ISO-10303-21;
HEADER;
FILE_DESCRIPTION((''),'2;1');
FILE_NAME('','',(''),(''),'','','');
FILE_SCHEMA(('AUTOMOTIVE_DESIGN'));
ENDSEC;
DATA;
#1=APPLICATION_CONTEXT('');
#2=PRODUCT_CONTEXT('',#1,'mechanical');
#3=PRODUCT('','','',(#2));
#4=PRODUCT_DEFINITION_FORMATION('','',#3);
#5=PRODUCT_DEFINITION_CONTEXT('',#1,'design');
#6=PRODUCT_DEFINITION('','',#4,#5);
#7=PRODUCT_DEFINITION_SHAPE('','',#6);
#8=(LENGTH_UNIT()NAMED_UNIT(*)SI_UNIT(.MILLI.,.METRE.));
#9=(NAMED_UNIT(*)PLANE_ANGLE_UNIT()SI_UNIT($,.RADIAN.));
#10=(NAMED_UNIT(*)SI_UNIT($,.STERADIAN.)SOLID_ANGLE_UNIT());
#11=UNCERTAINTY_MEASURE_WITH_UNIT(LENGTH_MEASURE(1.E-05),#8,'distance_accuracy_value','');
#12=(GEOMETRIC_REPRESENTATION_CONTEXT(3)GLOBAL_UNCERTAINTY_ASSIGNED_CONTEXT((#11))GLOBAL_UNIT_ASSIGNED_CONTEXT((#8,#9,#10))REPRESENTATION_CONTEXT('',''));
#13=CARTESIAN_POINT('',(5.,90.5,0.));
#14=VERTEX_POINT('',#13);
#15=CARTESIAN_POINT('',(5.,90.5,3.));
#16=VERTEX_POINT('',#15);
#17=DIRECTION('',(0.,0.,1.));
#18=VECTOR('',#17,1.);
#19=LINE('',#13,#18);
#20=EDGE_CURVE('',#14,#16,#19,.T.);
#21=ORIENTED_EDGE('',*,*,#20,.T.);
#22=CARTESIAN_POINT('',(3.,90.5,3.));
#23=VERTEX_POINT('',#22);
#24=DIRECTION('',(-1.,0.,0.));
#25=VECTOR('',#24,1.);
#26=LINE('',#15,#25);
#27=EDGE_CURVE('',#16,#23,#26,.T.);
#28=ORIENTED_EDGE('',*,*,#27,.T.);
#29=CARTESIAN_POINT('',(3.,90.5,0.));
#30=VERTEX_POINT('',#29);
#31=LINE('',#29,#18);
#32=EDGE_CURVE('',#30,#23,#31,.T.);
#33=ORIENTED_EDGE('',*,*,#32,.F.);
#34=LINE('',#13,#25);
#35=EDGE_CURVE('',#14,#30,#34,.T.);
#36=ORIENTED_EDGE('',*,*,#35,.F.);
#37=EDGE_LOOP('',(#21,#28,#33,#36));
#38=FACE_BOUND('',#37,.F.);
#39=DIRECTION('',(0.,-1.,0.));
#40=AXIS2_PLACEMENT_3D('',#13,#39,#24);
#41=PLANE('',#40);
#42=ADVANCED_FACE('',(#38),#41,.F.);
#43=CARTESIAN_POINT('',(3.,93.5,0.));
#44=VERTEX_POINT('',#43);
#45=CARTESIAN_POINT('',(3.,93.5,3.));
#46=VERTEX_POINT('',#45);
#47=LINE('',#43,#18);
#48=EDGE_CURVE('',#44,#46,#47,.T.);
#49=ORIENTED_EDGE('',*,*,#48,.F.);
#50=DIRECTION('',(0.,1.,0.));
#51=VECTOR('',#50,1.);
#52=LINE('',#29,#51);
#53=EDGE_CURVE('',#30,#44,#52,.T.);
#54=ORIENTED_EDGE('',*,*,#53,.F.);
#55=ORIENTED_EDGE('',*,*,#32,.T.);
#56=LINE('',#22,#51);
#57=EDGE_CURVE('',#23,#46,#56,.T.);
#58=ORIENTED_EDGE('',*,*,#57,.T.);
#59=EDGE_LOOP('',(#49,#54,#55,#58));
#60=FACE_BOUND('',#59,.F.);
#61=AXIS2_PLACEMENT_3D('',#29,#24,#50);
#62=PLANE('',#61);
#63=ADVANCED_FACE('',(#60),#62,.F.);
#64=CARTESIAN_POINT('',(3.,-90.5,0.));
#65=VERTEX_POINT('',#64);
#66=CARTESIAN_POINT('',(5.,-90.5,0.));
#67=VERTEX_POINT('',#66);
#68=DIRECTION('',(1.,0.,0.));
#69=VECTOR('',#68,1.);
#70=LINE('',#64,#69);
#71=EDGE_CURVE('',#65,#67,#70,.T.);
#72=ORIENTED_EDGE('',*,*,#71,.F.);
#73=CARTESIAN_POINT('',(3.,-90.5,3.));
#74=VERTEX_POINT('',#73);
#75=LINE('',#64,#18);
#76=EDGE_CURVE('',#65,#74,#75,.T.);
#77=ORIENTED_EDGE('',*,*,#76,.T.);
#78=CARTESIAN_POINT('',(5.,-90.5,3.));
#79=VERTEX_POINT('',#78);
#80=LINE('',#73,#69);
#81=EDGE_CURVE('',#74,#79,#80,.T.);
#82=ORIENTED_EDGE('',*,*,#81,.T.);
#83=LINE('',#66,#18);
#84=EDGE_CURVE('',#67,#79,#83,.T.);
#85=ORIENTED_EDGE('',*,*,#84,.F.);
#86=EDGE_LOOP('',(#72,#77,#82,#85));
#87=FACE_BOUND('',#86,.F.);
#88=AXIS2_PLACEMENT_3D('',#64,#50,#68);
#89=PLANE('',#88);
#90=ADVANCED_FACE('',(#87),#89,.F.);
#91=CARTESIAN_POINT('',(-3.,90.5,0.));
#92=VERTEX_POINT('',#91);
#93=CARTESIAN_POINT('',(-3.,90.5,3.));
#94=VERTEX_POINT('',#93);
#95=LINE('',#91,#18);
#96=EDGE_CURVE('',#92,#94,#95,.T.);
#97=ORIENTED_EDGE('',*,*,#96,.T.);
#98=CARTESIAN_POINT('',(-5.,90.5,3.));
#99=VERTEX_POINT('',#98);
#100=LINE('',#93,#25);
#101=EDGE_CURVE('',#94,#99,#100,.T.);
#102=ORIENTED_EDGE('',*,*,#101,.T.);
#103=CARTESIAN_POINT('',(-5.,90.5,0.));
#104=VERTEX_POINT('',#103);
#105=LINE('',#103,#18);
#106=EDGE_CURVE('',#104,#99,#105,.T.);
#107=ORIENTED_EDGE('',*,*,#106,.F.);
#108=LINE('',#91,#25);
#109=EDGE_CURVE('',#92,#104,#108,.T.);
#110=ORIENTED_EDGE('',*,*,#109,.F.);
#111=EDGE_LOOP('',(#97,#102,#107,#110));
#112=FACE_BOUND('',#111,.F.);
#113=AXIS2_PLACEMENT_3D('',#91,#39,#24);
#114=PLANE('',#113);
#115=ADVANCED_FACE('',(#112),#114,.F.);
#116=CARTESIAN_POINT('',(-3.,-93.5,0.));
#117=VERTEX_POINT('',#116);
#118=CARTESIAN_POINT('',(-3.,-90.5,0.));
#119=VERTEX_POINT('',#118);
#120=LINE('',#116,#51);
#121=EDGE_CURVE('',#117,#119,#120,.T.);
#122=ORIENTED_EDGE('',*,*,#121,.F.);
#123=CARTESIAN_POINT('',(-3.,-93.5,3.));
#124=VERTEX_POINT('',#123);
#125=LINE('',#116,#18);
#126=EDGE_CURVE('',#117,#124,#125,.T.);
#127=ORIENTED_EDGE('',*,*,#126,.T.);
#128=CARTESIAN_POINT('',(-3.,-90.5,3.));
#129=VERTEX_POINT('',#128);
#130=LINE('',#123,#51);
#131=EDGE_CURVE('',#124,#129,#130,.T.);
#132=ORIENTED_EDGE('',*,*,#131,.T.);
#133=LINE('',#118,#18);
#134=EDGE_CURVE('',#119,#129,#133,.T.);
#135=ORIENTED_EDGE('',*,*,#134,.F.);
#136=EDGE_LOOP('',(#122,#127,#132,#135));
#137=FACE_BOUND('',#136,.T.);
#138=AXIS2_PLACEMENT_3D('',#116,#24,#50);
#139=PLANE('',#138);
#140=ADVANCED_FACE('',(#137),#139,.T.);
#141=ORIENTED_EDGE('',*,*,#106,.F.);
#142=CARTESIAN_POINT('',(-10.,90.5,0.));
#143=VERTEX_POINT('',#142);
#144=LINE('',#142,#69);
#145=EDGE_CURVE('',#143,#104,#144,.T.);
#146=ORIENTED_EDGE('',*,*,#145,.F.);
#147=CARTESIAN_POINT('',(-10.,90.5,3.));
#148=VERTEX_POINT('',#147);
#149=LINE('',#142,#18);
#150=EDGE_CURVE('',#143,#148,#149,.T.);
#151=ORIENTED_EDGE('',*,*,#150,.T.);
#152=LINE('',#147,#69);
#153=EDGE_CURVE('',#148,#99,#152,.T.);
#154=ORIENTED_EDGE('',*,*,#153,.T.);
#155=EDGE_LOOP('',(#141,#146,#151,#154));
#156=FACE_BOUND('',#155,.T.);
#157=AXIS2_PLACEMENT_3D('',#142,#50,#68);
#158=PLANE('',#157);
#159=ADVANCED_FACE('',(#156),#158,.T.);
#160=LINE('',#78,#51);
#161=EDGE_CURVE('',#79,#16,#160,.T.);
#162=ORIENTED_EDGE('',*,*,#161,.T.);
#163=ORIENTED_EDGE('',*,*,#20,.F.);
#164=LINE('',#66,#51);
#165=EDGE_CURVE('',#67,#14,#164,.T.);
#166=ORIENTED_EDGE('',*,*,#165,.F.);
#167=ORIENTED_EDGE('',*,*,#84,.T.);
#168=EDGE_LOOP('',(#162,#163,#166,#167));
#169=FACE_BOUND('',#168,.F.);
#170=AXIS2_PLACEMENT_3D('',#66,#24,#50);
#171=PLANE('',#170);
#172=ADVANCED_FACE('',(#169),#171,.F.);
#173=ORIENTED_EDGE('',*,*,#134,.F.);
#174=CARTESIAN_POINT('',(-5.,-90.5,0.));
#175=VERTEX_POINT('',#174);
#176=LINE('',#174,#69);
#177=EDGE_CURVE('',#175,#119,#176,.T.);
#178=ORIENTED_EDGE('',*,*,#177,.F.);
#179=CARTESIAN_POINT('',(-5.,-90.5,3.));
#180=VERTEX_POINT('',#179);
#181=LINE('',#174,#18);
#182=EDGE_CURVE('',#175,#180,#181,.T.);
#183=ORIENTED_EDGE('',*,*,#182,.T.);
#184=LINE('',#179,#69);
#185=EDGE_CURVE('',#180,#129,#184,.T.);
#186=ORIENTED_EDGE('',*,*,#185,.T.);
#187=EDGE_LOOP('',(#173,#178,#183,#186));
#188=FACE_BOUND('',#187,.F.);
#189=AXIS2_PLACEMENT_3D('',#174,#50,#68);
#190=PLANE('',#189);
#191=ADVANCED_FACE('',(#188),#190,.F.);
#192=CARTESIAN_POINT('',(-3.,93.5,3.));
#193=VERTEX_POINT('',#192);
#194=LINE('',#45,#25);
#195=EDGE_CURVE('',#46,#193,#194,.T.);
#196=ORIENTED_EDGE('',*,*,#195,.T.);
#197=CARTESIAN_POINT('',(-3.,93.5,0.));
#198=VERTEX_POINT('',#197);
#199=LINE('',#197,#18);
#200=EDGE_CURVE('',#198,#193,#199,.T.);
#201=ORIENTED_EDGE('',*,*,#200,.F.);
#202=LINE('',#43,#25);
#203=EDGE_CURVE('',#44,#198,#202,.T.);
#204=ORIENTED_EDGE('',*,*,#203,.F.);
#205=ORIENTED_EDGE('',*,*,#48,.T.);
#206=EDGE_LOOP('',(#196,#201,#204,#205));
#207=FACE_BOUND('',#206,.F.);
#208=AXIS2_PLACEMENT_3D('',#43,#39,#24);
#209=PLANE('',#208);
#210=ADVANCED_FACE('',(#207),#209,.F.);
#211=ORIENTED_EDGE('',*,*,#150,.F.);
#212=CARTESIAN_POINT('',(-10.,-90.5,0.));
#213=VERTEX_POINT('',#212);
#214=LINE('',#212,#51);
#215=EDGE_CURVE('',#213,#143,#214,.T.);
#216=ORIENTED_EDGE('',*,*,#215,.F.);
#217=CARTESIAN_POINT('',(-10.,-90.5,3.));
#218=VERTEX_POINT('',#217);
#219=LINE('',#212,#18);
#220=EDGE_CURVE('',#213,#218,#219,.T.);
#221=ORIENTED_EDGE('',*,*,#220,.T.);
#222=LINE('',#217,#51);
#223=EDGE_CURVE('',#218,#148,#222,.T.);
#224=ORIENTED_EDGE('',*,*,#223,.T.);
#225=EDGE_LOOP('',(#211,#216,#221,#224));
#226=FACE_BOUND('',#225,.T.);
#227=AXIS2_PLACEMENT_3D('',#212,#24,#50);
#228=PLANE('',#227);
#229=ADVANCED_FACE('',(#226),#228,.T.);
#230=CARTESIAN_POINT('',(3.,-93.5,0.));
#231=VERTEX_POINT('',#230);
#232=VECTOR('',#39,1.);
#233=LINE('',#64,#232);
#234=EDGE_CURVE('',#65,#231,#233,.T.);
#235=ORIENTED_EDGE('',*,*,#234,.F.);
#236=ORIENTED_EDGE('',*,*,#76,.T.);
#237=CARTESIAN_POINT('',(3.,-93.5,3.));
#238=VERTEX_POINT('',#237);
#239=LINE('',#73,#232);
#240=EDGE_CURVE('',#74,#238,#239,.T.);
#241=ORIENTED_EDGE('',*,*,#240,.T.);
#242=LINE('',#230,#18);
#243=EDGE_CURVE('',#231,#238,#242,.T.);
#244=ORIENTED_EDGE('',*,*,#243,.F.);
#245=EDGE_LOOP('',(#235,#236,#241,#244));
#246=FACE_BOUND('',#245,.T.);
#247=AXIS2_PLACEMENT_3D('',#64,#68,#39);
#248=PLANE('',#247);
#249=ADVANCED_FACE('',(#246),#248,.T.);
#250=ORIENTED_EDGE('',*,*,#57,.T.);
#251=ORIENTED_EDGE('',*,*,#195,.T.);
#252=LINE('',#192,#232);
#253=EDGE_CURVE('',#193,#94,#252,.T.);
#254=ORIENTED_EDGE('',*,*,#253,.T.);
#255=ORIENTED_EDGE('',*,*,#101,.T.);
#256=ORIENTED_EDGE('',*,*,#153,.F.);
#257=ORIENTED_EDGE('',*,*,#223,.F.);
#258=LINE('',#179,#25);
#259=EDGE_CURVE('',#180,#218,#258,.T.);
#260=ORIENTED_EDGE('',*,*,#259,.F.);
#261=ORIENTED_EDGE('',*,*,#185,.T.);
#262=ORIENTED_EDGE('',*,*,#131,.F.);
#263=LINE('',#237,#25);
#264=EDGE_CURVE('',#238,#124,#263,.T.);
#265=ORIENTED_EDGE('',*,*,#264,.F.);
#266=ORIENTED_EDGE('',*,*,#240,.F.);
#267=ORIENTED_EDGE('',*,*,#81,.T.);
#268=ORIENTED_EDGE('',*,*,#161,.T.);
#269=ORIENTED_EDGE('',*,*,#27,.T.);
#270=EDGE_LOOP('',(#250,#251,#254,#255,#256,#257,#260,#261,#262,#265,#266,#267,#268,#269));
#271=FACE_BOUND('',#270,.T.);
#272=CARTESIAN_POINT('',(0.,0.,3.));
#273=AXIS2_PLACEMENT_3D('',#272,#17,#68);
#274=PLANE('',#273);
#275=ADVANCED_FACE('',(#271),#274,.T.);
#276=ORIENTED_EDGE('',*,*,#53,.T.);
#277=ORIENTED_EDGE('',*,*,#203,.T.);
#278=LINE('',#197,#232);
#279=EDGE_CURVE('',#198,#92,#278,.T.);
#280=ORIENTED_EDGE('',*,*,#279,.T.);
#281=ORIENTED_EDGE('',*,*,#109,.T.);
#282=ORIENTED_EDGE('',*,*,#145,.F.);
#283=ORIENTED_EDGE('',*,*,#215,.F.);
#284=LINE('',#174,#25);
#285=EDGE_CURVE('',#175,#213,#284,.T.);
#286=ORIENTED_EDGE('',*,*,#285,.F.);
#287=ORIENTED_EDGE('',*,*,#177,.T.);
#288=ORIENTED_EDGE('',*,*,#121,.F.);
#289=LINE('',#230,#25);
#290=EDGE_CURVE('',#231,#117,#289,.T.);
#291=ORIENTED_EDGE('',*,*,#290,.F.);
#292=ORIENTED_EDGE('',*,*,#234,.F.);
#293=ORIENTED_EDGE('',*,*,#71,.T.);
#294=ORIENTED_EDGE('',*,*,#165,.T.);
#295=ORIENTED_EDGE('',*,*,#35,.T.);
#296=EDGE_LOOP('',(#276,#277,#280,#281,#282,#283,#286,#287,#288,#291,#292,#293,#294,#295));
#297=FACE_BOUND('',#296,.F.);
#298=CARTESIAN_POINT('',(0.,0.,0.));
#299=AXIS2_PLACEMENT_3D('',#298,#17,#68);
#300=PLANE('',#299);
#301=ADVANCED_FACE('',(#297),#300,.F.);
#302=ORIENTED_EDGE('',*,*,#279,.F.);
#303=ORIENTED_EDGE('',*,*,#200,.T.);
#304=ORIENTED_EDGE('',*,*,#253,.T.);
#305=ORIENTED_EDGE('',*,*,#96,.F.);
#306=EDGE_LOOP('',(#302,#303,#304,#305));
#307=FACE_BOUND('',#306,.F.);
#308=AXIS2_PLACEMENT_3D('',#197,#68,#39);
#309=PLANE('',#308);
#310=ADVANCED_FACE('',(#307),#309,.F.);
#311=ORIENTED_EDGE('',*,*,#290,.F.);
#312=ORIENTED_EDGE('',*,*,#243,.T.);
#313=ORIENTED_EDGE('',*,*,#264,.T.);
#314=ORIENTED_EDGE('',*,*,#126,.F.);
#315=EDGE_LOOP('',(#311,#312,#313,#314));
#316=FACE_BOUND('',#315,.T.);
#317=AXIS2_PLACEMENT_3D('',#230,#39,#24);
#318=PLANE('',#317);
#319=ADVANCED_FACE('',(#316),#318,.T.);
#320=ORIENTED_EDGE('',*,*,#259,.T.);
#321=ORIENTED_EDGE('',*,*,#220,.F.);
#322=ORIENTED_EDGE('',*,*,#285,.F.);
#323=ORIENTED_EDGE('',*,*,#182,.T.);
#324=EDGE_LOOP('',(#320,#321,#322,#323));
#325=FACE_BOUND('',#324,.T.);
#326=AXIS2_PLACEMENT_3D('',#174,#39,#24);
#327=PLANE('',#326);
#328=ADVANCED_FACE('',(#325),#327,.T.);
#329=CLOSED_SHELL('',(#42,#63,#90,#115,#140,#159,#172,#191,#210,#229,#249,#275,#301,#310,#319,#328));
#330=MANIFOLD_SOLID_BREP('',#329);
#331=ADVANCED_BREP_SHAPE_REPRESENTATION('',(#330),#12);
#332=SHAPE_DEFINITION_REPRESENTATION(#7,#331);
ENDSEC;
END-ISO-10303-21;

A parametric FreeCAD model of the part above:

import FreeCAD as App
import Part
import Sketcher
from FreeCAD import Vector

doc = App.newDocument("Part")
params = doc.addObject("Spreadsheet::Sheet", "Params")
for row, (alias, value) in enumerate([
    ("sketch1_width", "2 mm"),
    ("sketch1_width2", "6 mm"),
    ("sketch1_height", "181 mm"),
    ("sketch1_height2", "3 mm"),
    ("pad1_length", "3 mm"),
], start=1):
    params.set(f"A{row}", alias)
    params.set(f"B{row}", "=" + value)
    params.setAlias(f"B{row}", alias)

body = doc.addObject("PartDesign::Body", "Body")

sketch1 = body.newObject("Sketcher::SketchObject", "Sketch")
sketch1.AttachmentSupport = (doc.getObject("XY_Plane"), [""])
sketch1.MapMode = "FlatFace"
sketch1.addGeometry([
    Part.LineSegment(Vector(3, -90.5, 0), Vector(5, -90.5, 0)),
    Part.LineSegment(Vector(5, -90.5, 0), Vector(5, 90.5, 0)),
    Part.LineSegment(Vector(5, 90.5, 0), Vector(3, 90.5, 0)),
    Part.LineSegment(Vector(3, 90.5, 0), Vector(3, 93.5, 0)),
    Part.LineSegment(Vector(3, 93.5, 0), Vector(-3, 93.5, 0)),
    Part.LineSegment(Vector(-3, 93.5, 0), Vector(-3, 90.5, 0)),
    Part.LineSegment(Vector(-3, 90.5, 0), Vector(-10, 90.5, 0)),
    Part.LineSegment(Vector(-10, 90.5, 0), Vector(-10, -90.5, 0)),
    Part.LineSegment(Vector(-10, -90.5, 0), Vector(-3, -90.5, 0)),
    Part.LineSegment(Vector(-3, -90.5, 0), Vector(-3, -93.5, 0)),
    Part.LineSegment(Vector(-3, -93.5, 0), Vector(3, -93.5, 0)),
    Part.LineSegment(Vector(3, -93.5, 0), Vector(3, -90.5, 0)),
], False)
sketch1.addConstraint([
    Sketcher.Constraint("Coincident", 0, 2, 1, 1),
    Sketcher.Constraint("Coincident", 1, 2, 2, 1),
    Sketcher.Constraint("Coincident", 2, 2, 3, 1),
    Sketcher.Constraint("Coincident", 3, 2, 4, 1),
    Sketcher.Constraint("Coincident", 4, 2, 5, 1),
    Sketcher.Constraint("Coincident", 5, 2, 6, 1),
    Sketcher.Constraint("Coincident", 6, 2, 7, 1),
    Sketcher.Constraint("Coincident", 7, 2, 8, 1),
    Sketcher.Constraint("Coincident", 8, 2, 9, 1),
    Sketcher.Constraint("Coincident", 9, 2, 10, 1),
    Sketcher.Constraint("Coincident", 10, 2, 11, 1),
    Sketcher.Constraint("Coincident", 11, 2, 0, 1),
    Sketcher.Constraint("Horizontal", 0),
    Sketcher.Constraint("Vertical", 1),
    Sketcher.Constraint("Horizontal", 2),
    Sketcher.Constraint("Vertical", 3),
    Sketcher.Constraint("Horizontal", 4),
    Sketcher.Constraint("Vertical", 5),
    Sketcher.Constraint("Horizontal", 6),
    Sketcher.Constraint("Vertical", 7),
    Sketcher.Constraint("Horizontal", 8),
    Sketcher.Constraint("Vertical", 9),
    Sketcher.Constraint("Horizontal", 10),
    Sketcher.Constraint("Vertical", 11),
    Sketcher.Constraint("Symmetric", 2, 2, 8, 2, -1, 1),
    Sketcher.Constraint("Symmetric", 4, 2, 10, 2, -1, 1),
    Sketcher.Constraint("Symmetric", 2, 2, 5, 2, -2),
    Sketcher.Constraint("Horizontal", 0, 2, 7, 2),
    Sketcher.Constraint("DistanceX", 0, 1, 0, 2, 2.0),
    Sketcher.Constraint("DistanceX", 4, 2, 4, 1, 6.0),
    Sketcher.Constraint("DistanceY", 1, 1, 1, 2, 181.0),
    Sketcher.Constraint("DistanceY", 3, 1, 3, 2, 3.0),
    Sketcher.Constraint("DistanceX", 6, 2, -1, 1, 10.0),
])
sketch1.setExpression("Constraints[28]", "Params.sketch1_width")
sketch1.setExpression("Constraints[29]", "Params.sketch1_width2")
sketch1.setExpression("Constraints[30]", "Params.sketch1_height")
sketch1.setExpression("Constraints[31]", "Params.sketch1_height2")
pad1 = body.newObject("PartDesign::Pad", "Pad")
pad1.Profile = sketch1
pad1.setExpression("Length", "Params.pad1_length")

doc.recompute()
